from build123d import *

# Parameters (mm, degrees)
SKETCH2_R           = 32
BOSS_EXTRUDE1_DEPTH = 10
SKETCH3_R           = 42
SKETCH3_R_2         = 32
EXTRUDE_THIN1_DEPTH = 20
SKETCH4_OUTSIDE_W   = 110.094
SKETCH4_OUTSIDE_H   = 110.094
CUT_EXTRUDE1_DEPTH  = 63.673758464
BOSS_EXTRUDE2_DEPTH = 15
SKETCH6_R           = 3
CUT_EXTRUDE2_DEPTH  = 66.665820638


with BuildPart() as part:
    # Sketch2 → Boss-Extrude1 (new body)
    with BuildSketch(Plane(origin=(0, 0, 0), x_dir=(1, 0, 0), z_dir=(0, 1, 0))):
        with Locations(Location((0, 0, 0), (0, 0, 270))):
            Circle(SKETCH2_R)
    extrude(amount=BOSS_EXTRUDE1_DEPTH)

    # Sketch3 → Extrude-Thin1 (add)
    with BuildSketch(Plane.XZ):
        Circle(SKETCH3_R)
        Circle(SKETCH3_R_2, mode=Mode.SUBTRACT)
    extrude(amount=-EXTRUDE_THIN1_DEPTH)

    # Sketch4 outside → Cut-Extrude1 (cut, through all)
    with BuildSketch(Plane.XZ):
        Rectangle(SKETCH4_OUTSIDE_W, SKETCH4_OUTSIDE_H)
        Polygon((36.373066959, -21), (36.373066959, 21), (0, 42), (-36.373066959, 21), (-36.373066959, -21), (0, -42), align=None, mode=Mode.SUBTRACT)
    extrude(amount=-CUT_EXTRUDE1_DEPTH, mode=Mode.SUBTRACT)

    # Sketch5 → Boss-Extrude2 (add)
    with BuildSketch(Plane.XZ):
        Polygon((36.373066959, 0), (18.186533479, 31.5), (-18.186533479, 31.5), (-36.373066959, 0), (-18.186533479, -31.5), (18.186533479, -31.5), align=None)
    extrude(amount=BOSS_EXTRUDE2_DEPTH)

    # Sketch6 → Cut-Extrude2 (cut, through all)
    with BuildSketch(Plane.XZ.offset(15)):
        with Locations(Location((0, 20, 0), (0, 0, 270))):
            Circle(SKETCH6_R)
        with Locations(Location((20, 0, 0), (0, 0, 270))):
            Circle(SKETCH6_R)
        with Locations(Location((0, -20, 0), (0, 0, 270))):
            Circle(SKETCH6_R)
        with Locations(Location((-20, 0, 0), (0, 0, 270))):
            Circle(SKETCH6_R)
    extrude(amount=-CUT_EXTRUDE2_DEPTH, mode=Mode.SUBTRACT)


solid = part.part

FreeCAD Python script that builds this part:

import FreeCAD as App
import Part
import Sketcher
from FreeCAD import Vector
Q = App.Units.Quantity

doc = App.newDocument("Part")
params = doc.addObject("Spreadsheet::Sheet", "Params")
for row, (alias, value) in enumerate([
    ("sketch1_diameter", "64 mm"),
    ("pad1_length", "10 mm"),
    ("sketch2_diameter", "84 mm"),
    ("sketch2_diameter2", "64 mm"),
    ("pad2_length", "20 mm"),
    ("sketch3_height", "42 mm"),
    ("sketch3_length", "42 mm"),
    ("pad3_length", "15 mm"),
    ("sketch5_diameter", "6 mm"),
], start=1):
    params.set(f"A{row}", alias)
    params.set(f"B{row}", "=" + value)
    params.setAlias(f"B{row}", alias)

body = doc.addObject("PartDesign::Body", "Body")

sketch1 = body.newObject("Sketcher::SketchObject", "Sketch")
sketch1.AttachmentSupport = (doc.getObject("XZ_Plane"), [""])
sketch1.MapMode = "FlatFace"
sketch1.addGeometry(Part.Circle(Vector(0, 0, 0), Vector(0, 0, 1), 32), False)
sketch1.addConstraint([
    Sketcher.Constraint("Coincident", 0, 3, -1, 1),
    Sketcher.Constraint("Diameter", 0, 64.0),
])
sketch1.setExpression("Constraints[1]", "Params.sketch1_diameter")
pad1 = body.newObject("PartDesign::Pad", "Pad")
pad1.Profile = sketch1
pad1.setExpression("Length", "Params.pad1_length")
pad1.Reversed = True

sketch2 = body.newObject("Sketcher::SketchObject", "Sketch001")
sketch2.AttachmentSupport = (doc.getObject("XZ_Plane"), [""])
sketch2.MapMode = "FlatFace"
sketch2.addGeometry([
    Part.Circle(Vector(0, 0, 0), Vector(0, 0, 1), 42),
    Part.Circle(Vector(0, 0, 0), Vector(0, 0, 1), 32),
], False)
sketch2.addConstraint([
    Sketcher.Constraint("Coincident", 0, 3, -1, 1),
    Sketcher.Constraint("Coincident", 1, 3, -1, 1),
    Sketcher.Constraint("Diameter", 0, 84.0),
    Sketcher.Constraint("Diameter", 1, 64.0),
])
sketch2.setExpression("Constraints[2]", "Params.sketch2_diameter")
sketch2.setExpression("Constraints[3]", "Params.sketch2_diameter2")
pad2 = body.newObject("PartDesign::Pad", "Pad001")
pad2.Profile = sketch2
pad2.setExpression("Length", "Params.pad2_length")
pad2.Reversed = True

sketch3 = body.newObject("Sketcher::SketchObject", "Sketch002")
sketch3.AttachmentSupport = (doc.getObject("XZ_Plane"), [""])
sketch3.MapMode = "FlatFace"
sketch3.addGeometry([
    Part.LineSegment(Vector(-55.047, 55.047, 0), Vector(-55.047, -55.047, 0)),
    Part.LineSegment(Vector(-55.047, -55.047, 0), Vector(55.047, -55.047, 0)),
    Part.LineSegment(Vector(55.047, -55.047, 0), Vector(55.047, 55.047, 0)),
    Part.LineSegment(Vector(55.047, 55.047, 0), Vector(-55.047, 55.047, 0)),
    Part.LineSegment(Vector(36.373067, 21, 0), Vector(36.373067, -21, 0)),
    Part.LineSegment(Vector(36.373067, -21, 0), Vector(0, -42, 0)),
    Part.LineSegment(Vector(0, -42, 0), Vector(-36.373067, -21, 0)),
    Part.LineSegment(Vector(-36.373067, -21, 0), Vector(-36.373067, 21, 0)),
    Part.LineSegment(Vector(-36.373067, 21, 0), Vector(0, 42, 0)),
    Part.LineSegment(Vector(0, 42, 0), Vector(36.373067, 21, 0)),
], False)
sketch3.addConstraint([
    Sketcher.Constraint("Coincident", 0, 2, 1, 1),
    Sketcher.Constraint("Coincident", 1, 2, 2, 1),
    Sketcher.Constraint("Coincident", 2, 2, 3, 1),
    Sketcher.Constraint("Coincident", 3, 2, 0, 1),
    Sketcher.Constraint("Coincident", 4, 2, 5, 1),
    Sketcher.Constraint("Coincident", 5, 2, 6, 1),
    Sketcher.Constraint("Coincident", 6, 2, 7, 1),
    Sketcher.Constraint("Coincident", 7, 2, 8, 1),
    Sketcher.Constraint("Coincident", 8, 2, 9, 1),
    Sketcher.Constraint("Coincident", 9, 2, 4, 1),
    Sketcher.Constraint("Vertical", 0),
    Sketcher.Constraint("Horizontal", 1),
    Sketcher.Constraint("Vertical", 2),
    Sketcher.Constraint("Horizontal", 3),
    Sketcher.Constraint("Vertical", 4),
    Sketcher.Constraint("Vertical", 7),
    Sketcher.Constraint("Symmetric", 0, 2, 2, 2, -1, 1),
    Sketcher.Constraint("Symmetric", 4, 2, 7, 2, -1, 1),
    Sketcher.Constraint("Symmetric", 5, 2, 8, 2, -1, 1),
    Sketcher.Constraint("PointOnObject", 5, 2, -2),
    Sketcher.Constraint("Parallel", 6, 9),
    Sketcher.Constraint("Horizontal", 4, 2, 6, 2),
    Sketcher.Constraint("Equal", 3, 0),
    Sketcher.Constraint("DistanceY", 4, 2, 4, 1, 42.0),
    Sketcher.Constraint("Angle", 5, Q("-150 deg")),
    Sketcher.Constraint("Distance", 5, 42.0),
    Sketcher.Constraint("DistanceX", 1, 1, 1, 2, 110.094),
])
sketch3.setExpression("Constraints[23]", "Params.sketch3_height")
sketch3.setExpression("Constraints[25]", "Params.sketch3_length")
pocket1 = body.newObject("PartDesign::Pocket", "Pocket")
pocket1.Profile = sketch3
pocket1.Type = "ThroughAll"

sketch4 = body.newObject("Sketcher::SketchObject", "Sketch003")
sketch4.AttachmentSupport = (doc.getObject("XZ_Plane"), [""])
sketch4.MapMode = "FlatFace"
sketch4.addGeometry([
    Part.LineSegment(Vector(36.373067, 0, 0), Vector(18.186533, 31.5, 0)),
    Part.LineSegment(Vector(18.186533, 31.5, 0), Vector(-18.186533, 31.5, 0)),
    Part.LineSegment(Vector(-18.186533, 31.5, 0), Vector(-36.373067, 0, 0)),
    Part.LineSegment(Vector(-36.373067, 0, 0), Vector(-18.186533, -31.5, 0)),
    Part.LineSegment(Vector(-18.186533, -31.5, 0), Vector(18.186533, -31.5, 0)),
    Part.LineSegment(Vector(18.186533, -31.5, 0), Vector(36.373067, 0, 0)),
], False)
sketch4.addConstraint([
    Sketcher.Constraint("Coincident", 0, 2, 1, 1),
    Sketcher.Constraint("Coincident", 1, 2, 2, 1),
    Sketcher.Constraint("Coincident", 2, 2, 3, 1),
    Sketcher.Constraint("Coincident", 3, 2, 4, 1),
    Sketcher.Constraint("Coincident", 4, 2, 5, 1),
    Sketcher.Constraint("Coincident", 5, 2, 0, 1),
    Sketcher.Constraint("Horizontal", 1),
    Sketcher.Constraint("Horizontal", 4),
    Sketcher.Constraint("Symmetric", 0, 2, 3, 2, -1, 1),
    Sketcher.Constraint("Symmetric", 2, 2, 5, 2, -1, 1),
    Sketcher.Constraint("PointOnObject", 2, 2, -1),
    Sketcher.Constraint("Parallel", 2, 5),
    Sketcher.Constraint("Vertical", 1, 2, 3, 2),
    Sketcher.Constraint("Angle", 0, Q("120 deg")),
    Sketcher.Constraint("DistanceY", 3, 2, 1, 2, 63.0),
    Sketcher.Constraint("DistanceX", 2, 2, 0, 2, 54.5596),
])
pad3 = body.newObject("PartDesign::Pad", "Pad002")
pad3.Profile = sketch4
pad3.setExpression("Length", "Params.pad3_length")

sketch5 = body.newObject("Sketcher::SketchObject", "Sketch004")
sketch5.AttachmentSupport = (doc.getObject("XZ_Plane"), [""])
sketch5.MapMode = "FlatFace"
sketch5.AttachmentOffset = App.Placement(Vector(0, 0, 15), App.Rotation())
sketch5.addGeometry([
    Part.Circle(Vector(0, 20, 0), Vector(0, 0, 1), 3),
    Part.Circle(Vector(20, 0, 0), Vector(0, 0, 1), 3),
    Part.Circle(Vector(0, -20, 0), Vector(0, 0, 1), 3),
    Part.Circle(Vector(-20, 0, 0), Vector(0, 0, 1), 3),
], False)
sketch5.addConstraint([
    Sketcher.Constraint("Equal", 0, 1),
    Sketcher.Constraint("Equal", 1, 2),
    Sketcher.Constraint("Equal", 2, 3),
    Sketcher.Constraint("Symmetric", 0, 3, 2, 3, -1, 1),
    Sketcher.Constraint("Symmetric", 1, 3, 3, 3, -1, 1),
    Sketcher.Constraint("PointOnObject", 0, 3, -2),
    Sketcher.Constraint("PointOnObject", 1, 3, -1),
    Sketcher.Constraint("Diameter", 0, 6.0),
    Sketcher.Constraint("DistanceY", -1, 1, 0, 3, 20.0),
    Sketcher.Constraint("DistanceX", -1, 1, 1, 3, 20.0),
])
sketch5.setExpression("Constraints[7]", "Params.sketch5_diameter")
pocket2 = body.newObject("PartDesign::Pocket", "Pocket001")
pocket2.Profile = sketch5
pocket2.Type = "ThroughAll"

doc.recompute()
